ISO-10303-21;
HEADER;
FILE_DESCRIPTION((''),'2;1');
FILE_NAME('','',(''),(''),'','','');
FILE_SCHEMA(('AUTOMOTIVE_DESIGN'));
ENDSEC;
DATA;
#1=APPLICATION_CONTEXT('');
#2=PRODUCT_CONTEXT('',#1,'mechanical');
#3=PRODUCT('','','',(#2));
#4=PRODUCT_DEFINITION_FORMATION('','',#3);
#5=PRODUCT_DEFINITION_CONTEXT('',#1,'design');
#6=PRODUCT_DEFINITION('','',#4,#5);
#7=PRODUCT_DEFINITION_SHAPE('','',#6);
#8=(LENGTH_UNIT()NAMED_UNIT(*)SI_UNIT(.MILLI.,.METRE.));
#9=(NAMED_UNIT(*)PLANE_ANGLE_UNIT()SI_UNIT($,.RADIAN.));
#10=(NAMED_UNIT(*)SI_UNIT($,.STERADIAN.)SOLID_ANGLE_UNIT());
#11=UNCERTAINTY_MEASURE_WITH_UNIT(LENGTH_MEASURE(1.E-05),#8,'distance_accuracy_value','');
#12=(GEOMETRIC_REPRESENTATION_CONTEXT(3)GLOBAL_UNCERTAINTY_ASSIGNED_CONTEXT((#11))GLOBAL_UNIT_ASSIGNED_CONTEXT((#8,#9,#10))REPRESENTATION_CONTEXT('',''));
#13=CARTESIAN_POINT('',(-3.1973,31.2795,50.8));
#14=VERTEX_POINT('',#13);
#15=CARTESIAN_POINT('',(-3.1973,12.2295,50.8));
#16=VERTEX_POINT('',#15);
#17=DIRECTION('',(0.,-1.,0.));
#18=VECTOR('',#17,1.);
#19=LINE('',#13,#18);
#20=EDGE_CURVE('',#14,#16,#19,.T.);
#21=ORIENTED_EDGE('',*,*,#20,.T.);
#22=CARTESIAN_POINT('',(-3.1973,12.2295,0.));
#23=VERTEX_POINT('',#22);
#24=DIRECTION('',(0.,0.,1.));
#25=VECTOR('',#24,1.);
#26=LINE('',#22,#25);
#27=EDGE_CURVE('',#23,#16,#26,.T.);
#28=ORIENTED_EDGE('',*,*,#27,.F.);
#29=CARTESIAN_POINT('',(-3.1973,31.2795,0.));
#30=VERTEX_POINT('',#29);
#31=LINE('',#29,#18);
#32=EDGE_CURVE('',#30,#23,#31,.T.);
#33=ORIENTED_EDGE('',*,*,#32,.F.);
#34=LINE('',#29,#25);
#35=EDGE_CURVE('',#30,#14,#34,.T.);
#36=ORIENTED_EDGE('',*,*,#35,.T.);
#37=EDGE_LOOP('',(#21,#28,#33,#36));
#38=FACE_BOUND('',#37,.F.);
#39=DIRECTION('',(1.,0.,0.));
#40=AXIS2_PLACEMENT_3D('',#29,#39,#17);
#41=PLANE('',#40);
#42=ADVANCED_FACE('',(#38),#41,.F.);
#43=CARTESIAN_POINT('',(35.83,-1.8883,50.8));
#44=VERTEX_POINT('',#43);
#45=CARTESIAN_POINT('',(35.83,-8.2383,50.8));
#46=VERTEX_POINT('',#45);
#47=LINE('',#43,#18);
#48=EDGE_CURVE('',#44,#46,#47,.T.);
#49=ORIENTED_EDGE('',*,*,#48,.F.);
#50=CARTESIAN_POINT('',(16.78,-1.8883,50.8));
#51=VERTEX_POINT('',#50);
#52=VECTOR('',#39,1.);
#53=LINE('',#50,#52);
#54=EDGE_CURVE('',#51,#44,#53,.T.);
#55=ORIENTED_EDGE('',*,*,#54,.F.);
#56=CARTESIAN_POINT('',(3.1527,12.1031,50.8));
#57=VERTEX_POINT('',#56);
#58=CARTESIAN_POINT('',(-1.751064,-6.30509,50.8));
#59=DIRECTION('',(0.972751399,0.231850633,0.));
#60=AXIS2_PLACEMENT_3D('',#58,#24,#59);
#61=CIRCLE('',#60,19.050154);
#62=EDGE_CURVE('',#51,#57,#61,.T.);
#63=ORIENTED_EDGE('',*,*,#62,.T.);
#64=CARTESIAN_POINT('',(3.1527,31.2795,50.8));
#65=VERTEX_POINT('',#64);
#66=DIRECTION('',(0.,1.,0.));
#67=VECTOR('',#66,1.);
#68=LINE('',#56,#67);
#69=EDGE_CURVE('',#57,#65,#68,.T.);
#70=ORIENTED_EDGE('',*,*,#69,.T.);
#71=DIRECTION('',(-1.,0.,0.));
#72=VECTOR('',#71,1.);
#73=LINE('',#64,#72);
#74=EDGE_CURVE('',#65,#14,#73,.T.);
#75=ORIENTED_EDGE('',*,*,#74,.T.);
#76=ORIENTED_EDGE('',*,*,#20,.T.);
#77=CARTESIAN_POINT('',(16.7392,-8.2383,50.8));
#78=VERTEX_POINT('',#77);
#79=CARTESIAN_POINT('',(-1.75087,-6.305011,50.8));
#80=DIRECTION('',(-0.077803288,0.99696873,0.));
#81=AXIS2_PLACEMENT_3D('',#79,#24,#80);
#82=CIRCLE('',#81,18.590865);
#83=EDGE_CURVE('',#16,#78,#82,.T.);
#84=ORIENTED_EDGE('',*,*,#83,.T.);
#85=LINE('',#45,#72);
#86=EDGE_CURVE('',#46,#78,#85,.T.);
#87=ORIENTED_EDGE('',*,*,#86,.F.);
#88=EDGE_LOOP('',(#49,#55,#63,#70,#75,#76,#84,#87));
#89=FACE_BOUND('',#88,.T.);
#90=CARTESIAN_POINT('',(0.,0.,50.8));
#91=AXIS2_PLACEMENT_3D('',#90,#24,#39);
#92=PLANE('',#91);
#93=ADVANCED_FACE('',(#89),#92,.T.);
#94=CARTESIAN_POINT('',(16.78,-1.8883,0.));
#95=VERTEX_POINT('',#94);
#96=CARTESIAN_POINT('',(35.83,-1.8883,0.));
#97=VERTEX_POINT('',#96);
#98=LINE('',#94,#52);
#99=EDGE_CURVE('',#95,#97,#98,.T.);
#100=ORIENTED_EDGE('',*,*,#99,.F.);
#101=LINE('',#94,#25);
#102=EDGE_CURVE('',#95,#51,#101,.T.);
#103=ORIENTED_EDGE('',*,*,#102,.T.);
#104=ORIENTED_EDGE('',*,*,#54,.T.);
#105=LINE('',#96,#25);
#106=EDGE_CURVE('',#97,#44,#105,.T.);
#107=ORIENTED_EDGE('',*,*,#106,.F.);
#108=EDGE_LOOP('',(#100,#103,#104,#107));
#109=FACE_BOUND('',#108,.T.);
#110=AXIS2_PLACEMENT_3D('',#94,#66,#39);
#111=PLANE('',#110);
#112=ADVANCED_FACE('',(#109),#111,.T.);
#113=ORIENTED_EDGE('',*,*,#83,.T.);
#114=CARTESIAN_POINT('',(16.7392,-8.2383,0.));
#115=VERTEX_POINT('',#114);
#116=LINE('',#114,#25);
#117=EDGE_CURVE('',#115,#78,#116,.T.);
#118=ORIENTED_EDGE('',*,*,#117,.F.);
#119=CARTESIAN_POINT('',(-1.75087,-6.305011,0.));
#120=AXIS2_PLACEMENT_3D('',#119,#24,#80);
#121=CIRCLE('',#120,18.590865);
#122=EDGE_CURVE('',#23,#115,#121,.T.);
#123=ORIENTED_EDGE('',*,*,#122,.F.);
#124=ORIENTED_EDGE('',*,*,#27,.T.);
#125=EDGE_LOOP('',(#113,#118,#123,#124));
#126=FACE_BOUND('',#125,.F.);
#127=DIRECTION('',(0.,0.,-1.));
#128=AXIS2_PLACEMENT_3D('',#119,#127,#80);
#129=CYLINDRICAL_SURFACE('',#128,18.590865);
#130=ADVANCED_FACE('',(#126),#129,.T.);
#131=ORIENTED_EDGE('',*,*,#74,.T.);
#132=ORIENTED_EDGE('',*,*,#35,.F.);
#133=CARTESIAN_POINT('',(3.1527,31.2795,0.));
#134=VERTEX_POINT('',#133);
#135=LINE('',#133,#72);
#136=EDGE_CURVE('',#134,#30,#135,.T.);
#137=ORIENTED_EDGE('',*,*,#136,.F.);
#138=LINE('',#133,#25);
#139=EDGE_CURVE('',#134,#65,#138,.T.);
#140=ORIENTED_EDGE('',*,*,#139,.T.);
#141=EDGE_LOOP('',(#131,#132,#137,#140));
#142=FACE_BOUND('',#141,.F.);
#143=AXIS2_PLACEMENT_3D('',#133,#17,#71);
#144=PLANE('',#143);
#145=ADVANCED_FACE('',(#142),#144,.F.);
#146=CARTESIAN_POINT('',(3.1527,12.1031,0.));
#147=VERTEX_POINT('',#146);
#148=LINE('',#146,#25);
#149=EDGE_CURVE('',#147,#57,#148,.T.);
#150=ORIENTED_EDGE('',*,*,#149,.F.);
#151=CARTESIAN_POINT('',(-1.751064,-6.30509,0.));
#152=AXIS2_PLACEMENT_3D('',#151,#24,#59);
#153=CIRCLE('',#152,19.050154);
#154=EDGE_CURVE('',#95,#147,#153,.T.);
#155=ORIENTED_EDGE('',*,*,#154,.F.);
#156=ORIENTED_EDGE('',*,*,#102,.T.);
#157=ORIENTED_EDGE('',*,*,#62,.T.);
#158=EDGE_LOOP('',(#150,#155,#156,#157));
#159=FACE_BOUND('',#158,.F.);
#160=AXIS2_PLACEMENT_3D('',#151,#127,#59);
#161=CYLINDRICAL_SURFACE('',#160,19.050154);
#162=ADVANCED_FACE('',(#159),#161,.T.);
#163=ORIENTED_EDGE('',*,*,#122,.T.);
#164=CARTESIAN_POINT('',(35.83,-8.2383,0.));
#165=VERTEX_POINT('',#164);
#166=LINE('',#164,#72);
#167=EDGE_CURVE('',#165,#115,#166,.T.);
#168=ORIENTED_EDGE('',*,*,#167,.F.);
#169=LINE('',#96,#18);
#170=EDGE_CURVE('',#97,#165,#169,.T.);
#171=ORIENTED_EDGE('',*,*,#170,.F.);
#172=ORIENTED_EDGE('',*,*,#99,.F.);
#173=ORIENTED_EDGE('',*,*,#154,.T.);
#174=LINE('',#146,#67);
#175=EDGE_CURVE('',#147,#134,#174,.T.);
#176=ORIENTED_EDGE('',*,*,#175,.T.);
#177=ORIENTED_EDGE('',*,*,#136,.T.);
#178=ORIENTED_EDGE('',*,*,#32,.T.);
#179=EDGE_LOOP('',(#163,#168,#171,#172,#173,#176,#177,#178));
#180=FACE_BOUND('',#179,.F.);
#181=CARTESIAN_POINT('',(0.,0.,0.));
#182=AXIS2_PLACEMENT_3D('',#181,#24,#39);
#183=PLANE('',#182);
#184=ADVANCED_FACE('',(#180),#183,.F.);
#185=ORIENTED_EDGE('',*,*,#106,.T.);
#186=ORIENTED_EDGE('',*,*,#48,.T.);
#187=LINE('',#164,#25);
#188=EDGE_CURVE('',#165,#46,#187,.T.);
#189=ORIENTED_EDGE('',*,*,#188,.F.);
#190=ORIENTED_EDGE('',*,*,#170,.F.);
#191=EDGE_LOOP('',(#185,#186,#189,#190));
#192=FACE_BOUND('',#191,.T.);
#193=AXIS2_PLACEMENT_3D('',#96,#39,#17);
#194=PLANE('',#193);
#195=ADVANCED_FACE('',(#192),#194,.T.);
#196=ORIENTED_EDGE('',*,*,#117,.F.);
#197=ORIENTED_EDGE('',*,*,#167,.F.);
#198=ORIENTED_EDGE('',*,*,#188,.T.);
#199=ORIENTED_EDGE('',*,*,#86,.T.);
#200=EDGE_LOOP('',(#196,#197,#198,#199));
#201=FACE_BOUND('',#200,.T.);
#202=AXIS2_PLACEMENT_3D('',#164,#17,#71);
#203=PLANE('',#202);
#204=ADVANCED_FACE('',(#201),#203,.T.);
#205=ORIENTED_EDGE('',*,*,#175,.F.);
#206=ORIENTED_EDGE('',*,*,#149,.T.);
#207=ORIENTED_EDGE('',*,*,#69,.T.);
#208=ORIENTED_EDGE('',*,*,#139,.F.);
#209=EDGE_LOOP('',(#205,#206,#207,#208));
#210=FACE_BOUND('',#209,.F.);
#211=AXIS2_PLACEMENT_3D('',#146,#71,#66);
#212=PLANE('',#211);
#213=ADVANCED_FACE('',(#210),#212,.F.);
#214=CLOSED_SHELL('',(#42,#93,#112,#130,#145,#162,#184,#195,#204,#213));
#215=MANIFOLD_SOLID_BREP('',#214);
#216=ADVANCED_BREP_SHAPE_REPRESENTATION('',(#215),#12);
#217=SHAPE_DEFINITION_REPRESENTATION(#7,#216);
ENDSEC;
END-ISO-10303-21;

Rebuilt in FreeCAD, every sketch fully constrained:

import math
import FreeCAD as App
import Part
import Sketcher
Q = App.Units.Quantity

doc = App.newDocument("Part")
body = doc.addObject("PartDesign::Body", "Body")

sketch1 = doc.addObject("Sketcher::SketchObject", "Sketch")
body.addObject(sketch1)
sketch1.AttachmentSupport = (doc.XY_Plane, [""])
sketch1.MapMode = "FlatFace"
sketch1.addGeometry([
    Part.ArcOfCircle(Part.Circle(App.Vector(-2, -6, 0), App.Vector(0, 0, 1), 19), math.radians(13), math.radians(75)),
    Part.LineSegment(App.Vector(3, 12, 0), App.Vector(3, 31, 0)),
    Part.LineSegment(App.Vector(3, 31, 0), App.Vector(-3, 31, 0)),
    Part.LineSegment(App.Vector(-3, 31, 0), App.Vector(-3, 12, 0)),
    Part.ArcOfCircle(Part.Circle(App.Vector(-2, -6, 0), App.Vector(0, 0, 1), 19), math.radians(94), math.radians(354)),
    Part.LineSegment(App.Vector(17, -8, 0), App.Vector(36, -8, 0)),
    Part.LineSegment(App.Vector(36, -8, 0), App.Vector(36, -2, 0)),
    Part.LineSegment(App.Vector(36, -2, 0), App.Vector(17, -2, 0)),
], False)
sketch1.addConstraint([
    Sketcher.Constraint("Coincident", 0, 2, 1, 1),
    Sketcher.Constraint("Coincident", 1, 2, 2, 1),
    Sketcher.Constraint("Coincident", 2, 2, 3, 1),
    Sketcher.Constraint("Coincident", 3, 2, 4, 1),
    Sketcher.Constraint("Coincident", 4, 2, 5, 1),
    Sketcher.Constraint("Coincident", 5, 2, 6, 1),
    Sketcher.Constraint("Coincident", 6, 2, 7, 1),
    Sketcher.Constraint("Coincident", 7, 2, 0, 1),
    Sketcher.Constraint("Vertical", 1),
    Sketcher.Constraint("Horizontal", 2),
    Sketcher.Constraint("Vertical", 3),
    Sketcher.Constraint("Horizontal", 5),
    Sketcher.Constraint("Vertical", 6),
    Sketcher.Constraint("Horizontal", 7),
    Sketcher.Constraint("Coincident", 4, 3, 0, 3),
    Sketcher.Constraint("Equal", 7, 3),
    Sketcher.Constraint("Equal", 2, 6),
    Sketcher.Constraint("Radius", 0, Q("0.75 in")),
    Sketcher.Constraint("DistanceX", 2, 2, 2, 1, Q("0.25 in")),
    Sketcher.Constraint("DistanceX", 7, 2, 7, 1, Q("0.75 in")),
    Sketcher.Constraint("Radius", 4, 18.5909),
    Sketcher.Constraint("DistanceX", 5, 1, 5, 2, Q("0.7516 in")),
    Sketcher.Constraint("DistanceY", 1, 1, 1, 2, 19.1764),
    Sketcher.Constraint("DistanceY", -1, 1, 0, 2, Q("0.4765 in")),
    Sketcher.Constraint("DistanceX", 0, 3, -1, 1, 1.751),
])
pad1 = doc.addObject("PartDesign::Pad", "Pad")
body.addObject(pad1)
pad1.Profile = sketch1
pad1.Length = Q("2 in")

doc.recompute()
